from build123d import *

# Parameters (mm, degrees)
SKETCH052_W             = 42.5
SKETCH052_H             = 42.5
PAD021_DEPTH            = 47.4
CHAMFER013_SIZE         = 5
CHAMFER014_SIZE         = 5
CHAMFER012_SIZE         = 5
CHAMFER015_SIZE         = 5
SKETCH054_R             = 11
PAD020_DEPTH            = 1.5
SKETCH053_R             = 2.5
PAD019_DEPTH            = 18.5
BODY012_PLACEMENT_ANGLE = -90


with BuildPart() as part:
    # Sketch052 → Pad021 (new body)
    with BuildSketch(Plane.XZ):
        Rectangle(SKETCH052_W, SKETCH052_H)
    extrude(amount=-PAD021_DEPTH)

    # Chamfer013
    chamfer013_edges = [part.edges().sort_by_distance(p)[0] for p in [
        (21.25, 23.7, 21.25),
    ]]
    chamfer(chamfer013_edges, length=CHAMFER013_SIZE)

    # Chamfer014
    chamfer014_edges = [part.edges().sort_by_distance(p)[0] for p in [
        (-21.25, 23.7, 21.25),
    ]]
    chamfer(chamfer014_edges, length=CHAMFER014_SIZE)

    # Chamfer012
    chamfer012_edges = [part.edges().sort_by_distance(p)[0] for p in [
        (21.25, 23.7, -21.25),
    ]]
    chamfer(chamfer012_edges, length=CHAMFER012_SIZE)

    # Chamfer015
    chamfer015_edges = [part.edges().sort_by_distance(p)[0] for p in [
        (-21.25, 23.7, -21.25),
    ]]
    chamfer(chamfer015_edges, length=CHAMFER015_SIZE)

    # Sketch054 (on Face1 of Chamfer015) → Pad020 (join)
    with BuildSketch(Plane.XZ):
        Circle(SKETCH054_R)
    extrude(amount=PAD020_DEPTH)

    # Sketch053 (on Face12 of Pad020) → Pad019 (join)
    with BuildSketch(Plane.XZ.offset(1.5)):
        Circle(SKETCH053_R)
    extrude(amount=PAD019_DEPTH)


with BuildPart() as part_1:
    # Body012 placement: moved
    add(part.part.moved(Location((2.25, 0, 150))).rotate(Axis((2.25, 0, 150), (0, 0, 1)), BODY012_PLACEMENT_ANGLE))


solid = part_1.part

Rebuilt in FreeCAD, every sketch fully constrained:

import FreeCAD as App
import Part
import Sketcher
from FreeCAD import Vector
Q = App.Units.Quantity


def edges_at(feature, points):
    """Names of the edges that pass closest to the given points."""
    edges = feature.Shape.Edges
    near = lambda p: min(range(len(edges)), key=lambda i: edges[i].distToShape(Part.Vertex(*p))[0])
    return sorted({f"Edge{near(p) + 1}" for p in points})


def add_polygon(sketch, points):
    """Adds a closed chain of lines whose ends are joined by coincident constraints."""
    first, n = sketch.GeometryCount, len(points)
    for a, b in zip(points, points[1:] + points[:1]):
        sketch.addGeometry(Part.LineSegment(App.Vector(*a, 0), App.Vector(*b, 0)), False)
    for i in range(n):
        sketch.addConstraint(Sketcher.Constraint("Coincident", first + i, 2, first + (i + 1) % n, 1))

doc = App.newDocument("Part")
body = doc.addObject("PartDesign::Body", "Body")

# Sketch on XZ plane
sketch1 = body.newObject("Sketcher::SketchObject", "Sketch")
sketch1.AttachmentSupport = (doc.getObject("XZ_Plane"), [""])
sketch1.MapMode = "FlatFace"
add_polygon(sketch1, [(-21, 21), (-21, -21), (21, -21), (21, 21)])  # lines 0-3
sketch1.addConstraint([
    Sketcher.Constraint("Vertical", 0),
    Sketcher.Constraint("Horizontal", 1),
    Sketcher.Constraint("Vertical", 2),
    Sketcher.Constraint("Horizontal", 3),
    Sketcher.Constraint("Symmetric", 0, 2, 2, 2, -1, 1),
    Sketcher.Constraint("Equal", 3, 0),
    Sketcher.Constraint("DistanceX", 1, 1, 1, 2, Q("42.5 mm")),
])
pad1 = body.newObject("PartDesign::Pad", "Pad")
pad1.Profile = sketch1
pad1.Length = 47.4
pad1.Reversed = True
doc.recompute()

chamfer = body.newObject("PartDesign::Chamfer", "Chamfer")
chamfer.Base = (pad1, edges_at(pad1, [(21.25, 23.7, 21.25)]))
chamfer.Size = 5
doc.recompute()

chamfer2 = body.newObject("PartDesign::Chamfer", "Chamfer001")
chamfer2.Base = (chamfer, edges_at(chamfer, [(-21.25, 23.7, 21.25)]))
chamfer2.Size = 5
doc.recompute()

chamfer3 = body.newObject("PartDesign::Chamfer", "Chamfer002")
chamfer3.Base = (chamfer2, edges_at(chamfer2, [(21.25, 23.7, -21.25)]))
chamfer3.Size = 5
doc.recompute()

chamfer4 = body.newObject("PartDesign::Chamfer", "Chamfer003")
chamfer4.Base = (chamfer3, edges_at(chamfer3, [(-21.25, 23.7, -21.25)]))
chamfer4.Size = 5

# Sketch on XZ plane
sketch2 = body.newObject("Sketcher::SketchObject", "Sketch001")
sketch2.AttachmentSupport = (doc.getObject("XZ_Plane"), [""])
sketch2.MapMode = "FlatFace"
sketch2.addGeometry(Part.Circle(Vector(0, 0, 0), Vector(0, 0, 1), 11), False)
sketch2.addConstraint([
    Sketcher.Constraint("Coincident", 0, 3, -1, 1),
    Sketcher.Constraint("Diameter", 0, Q("22 mm")),
])
pad2 = body.newObject("PartDesign::Pad", "Pad001")
pad2.Profile = sketch2
pad2.Length = 1.5

# Sketch on XZ plane
sketch3 = body.newObject("Sketcher::SketchObject", "Sketch002")
sketch3.AttachmentSupport = (doc.getObject("XZ_Plane"), [""])
sketch3.MapMode = "FlatFace"
sketch3.AttachmentOffset = App.Placement(Vector(0, 0, 1.5), App.Rotation())
sketch3.addGeometry(Part.Circle(Vector(0, 0, 0), Vector(0, 0, 1), 2.5), False)
sketch3.addConstraint([
    Sketcher.Constraint("Coincident", 0, 3, -1, 1),
    Sketcher.Constraint("Diameter", 0, Q("5 mm")),
])
pad3 = body.newObject("PartDesign::Pad", "Pad002")
pad3.Profile = sketch3
pad3.Length = 18.5
body2 = doc.addObject("PartDesign::Body", "Body001")
doc.recompute()

body.Placement = App.Placement(Vector(2.25, 0, 150), App.Rotation(Vector(0, 0, 1), 270))
boolean = body2.newObject("PartDesign::Boolean", "Boolean")
boolean.Type = "Fuse"
boolean.addObjects([body])

doc.recompute()
